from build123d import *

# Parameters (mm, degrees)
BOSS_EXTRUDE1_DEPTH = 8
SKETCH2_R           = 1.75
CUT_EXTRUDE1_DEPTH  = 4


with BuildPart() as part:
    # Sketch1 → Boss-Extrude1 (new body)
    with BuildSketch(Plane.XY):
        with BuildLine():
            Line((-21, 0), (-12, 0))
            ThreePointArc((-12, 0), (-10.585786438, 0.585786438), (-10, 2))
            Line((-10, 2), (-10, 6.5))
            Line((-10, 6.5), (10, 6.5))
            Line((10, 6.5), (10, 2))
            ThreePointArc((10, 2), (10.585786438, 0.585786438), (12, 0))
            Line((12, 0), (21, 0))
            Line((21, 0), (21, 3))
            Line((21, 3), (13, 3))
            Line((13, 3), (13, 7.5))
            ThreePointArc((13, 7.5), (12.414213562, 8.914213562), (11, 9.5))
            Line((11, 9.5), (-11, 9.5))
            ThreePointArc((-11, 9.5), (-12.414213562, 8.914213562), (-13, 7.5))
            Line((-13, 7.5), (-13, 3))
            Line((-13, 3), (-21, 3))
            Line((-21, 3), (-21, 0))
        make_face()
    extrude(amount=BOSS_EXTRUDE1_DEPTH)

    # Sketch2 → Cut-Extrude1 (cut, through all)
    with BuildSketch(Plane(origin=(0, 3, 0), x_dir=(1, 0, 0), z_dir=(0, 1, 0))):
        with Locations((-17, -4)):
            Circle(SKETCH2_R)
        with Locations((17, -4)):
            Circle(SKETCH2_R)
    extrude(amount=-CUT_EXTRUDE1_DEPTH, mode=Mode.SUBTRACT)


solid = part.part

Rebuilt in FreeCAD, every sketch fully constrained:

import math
import FreeCAD as App
import Part
import Sketcher

doc = App.newDocument("Part")
body = doc.addObject("PartDesign::Body", "Body")

sketch1 = body.newObject("Sketcher::SketchObject", "Sketch")
sketch1.AttachmentSupport = (doc.getObject("XY_Plane"), [""])
sketch1.MapMode = "FlatFace"
sketch1.addGeometry([
    Part.LineSegment(App.Vector(-21, 0, 0), App.Vector(-12, 0, 0)),
    Part.ArcOfCircle(Part.Circle(App.Vector(-12, 2, 0), App.Vector(0, 0, 1), 2), math.radians(-90), math.radians(0)),
    Part.LineSegment(App.Vector(-10, 2, 0), App.Vector(-10, 6.5, 0)),
    Part.LineSegment(App.Vector(-10, 6.5, 0), App.Vector(10, 6.5, 0)),
    Part.LineSegment(App.Vector(10, 6.5, 0), App.Vector(10, 2, 0)),
    Part.ArcOfCircle(Part.Circle(App.Vector(12, 2, 0), App.Vector(0, 0, 1), 2), math.radians(-180), math.radians(-90)),
    Part.LineSegment(App.Vector(12, 0, 0), App.Vector(21, 0, 0)),
    Part.LineSegment(App.Vector(21, 0, 0), App.Vector(21, 3, 0)),
    Part.LineSegment(App.Vector(21, 3, 0), App.Vector(13, 3, 0)),
    Part.LineSegment(App.Vector(13, 3, 0), App.Vector(13, 7.5, 0)),
    Part.ArcOfCircle(Part.Circle(App.Vector(11, 7.5, 0), App.Vector(0, 0, 1), 2), math.radians(0), math.radians(90)),
    Part.LineSegment(App.Vector(11, 9.5, 0), App.Vector(-11, 9.5, 0)),
    Part.ArcOfCircle(Part.Circle(App.Vector(-11, 7.5, 0), App.Vector(0, 0, 1), 2), math.radians(90), math.radians(180)),
    Part.LineSegment(App.Vector(-13, 7.5, 0), App.Vector(-13, 3, 0)),
    Part.LineSegment(App.Vector(-13, 3, 0), App.Vector(-21, 3, 0)),
    Part.LineSegment(App.Vector(-21, 3, 0), App.Vector(-21, 0, 0)),
], False)
sketch1.addConstraint([
    Sketcher.Constraint("Tangent", 0, 2, 1, 1),
    Sketcher.Constraint("Tangent", 1, 2, 2, 1),
    Sketcher.Constraint("Coincident", 2, 2, 3, 1),
    Sketcher.Constraint("Coincident", 3, 2, 4, 1),
    Sketcher.Constraint("Tangent", 4, 2, 5, 1),
    Sketcher.Constraint("Tangent", 5, 2, 6, 1),
    Sketcher.Constraint("Coincident", 6, 2, 7, 1),
    Sketcher.Constraint("Coincident", 7, 2, 8, 1),
    Sketcher.Constraint("Coincident", 8, 2, 9, 1),
    Sketcher.Constraint("Tangent", 9, 2, 10, 1),
    Sketcher.Constraint("Tangent", 10, 2, 11, 1),
    Sketcher.Constraint("Tangent", 11, 2, 12, 1),
    Sketcher.Constraint("Tangent", 12, 2, 13, 1),
    Sketcher.Constraint("Coincident", 13, 2, 14, 1),
    Sketcher.Constraint("Coincident", 14, 2, 15, 1),
    Sketcher.Constraint("Coincident", 15, 2, 0, 1),
    Sketcher.Constraint("Horizontal", 0),
    Sketcher.Constraint("Vertical", 2),
    Sketcher.Constraint("Horizontal", 3),
    Sketcher.Constraint("Vertical", 4),
    Sketcher.Constraint("Horizontal", 6),
    Sketcher.Constraint("Vertical", 7),
    Sketcher.Constraint("Horizontal", 8),
    Sketcher.Constraint("Vertical", 9),
    Sketcher.Constraint("Horizontal", 11),
    Sketcher.Constraint("Vertical", 13),
    Sketcher.Constraint("Horizontal", 14),
    Sketcher.Constraint("Vertical", 15),
    Sketcher.Constraint("Equal", 1, 5),
    Sketcher.Constraint("Equal", 5, 10),
    Sketcher.Constraint("Equal", 10, 12),
    Sketcher.Constraint("Symmetric", 0, 2, 5, 2, -1, 1),
    Sketcher.Constraint("Symmetric", 8, 2, 13, 2, -2),
    Sketcher.Constraint("Symmetric", 6, 2, 15, 2, -2),
    Sketcher.Constraint("Equal", 4, 9),
    Sketcher.Constraint("Radius", 1, 2.0),
    Sketcher.Constraint("DistanceX", 0, 1, 0, 2, 9.0),
    Sketcher.Constraint("DistanceX", 3, 1, 3, 2, 20.0),
    Sketcher.Constraint("DistanceX", 8, 2, 8, 1, 8.0),
    Sketcher.Constraint("DistanceY", 7, 1, 7, 2, 3.0),
    Sketcher.Constraint("DistanceY", 2, 1, 2, 2, 4.5),
])
pad1 = body.newObject("PartDesign::Pad", "Pad")
pad1.Profile = sketch1
pad1.Length = 8

sketch2 = body.newObject("Sketcher::SketchObject", "Sketch001")
sketch2.AttachmentSupport = (doc.getObject("XZ_Plane"), [""])
sketch2.MapMode = "FlatFace"
sketch2.AttachmentOffset = App.Placement(App.Vector(0, 0, -3), App.Rotation())
sketch2.addGeometry([
    Part.Circle(App.Vector(-17, 4, 0), App.Vector(0, 0, 1), 1.75),
    Part.Circle(App.Vector(17, 4, 0), App.Vector(0, 0, 1), 1.75),
], False)
sketch2.addConstraint([
    Sketcher.Constraint("Equal", 0, 1),
    Sketcher.Constraint("Symmetric", 0, 3, 1, 3, -2),
    Sketcher.Constraint("Diameter", 0, 3.5),
    Sketcher.Constraint("DistanceX", 0, 3, -1, 1, 17.0),
    Sketcher.Constraint("DistanceY", -1, 1, 0, 3, 4.0),
])
pocket1 = body.newObject("PartDesign::Pocket", "Pocket")
pocket1.Profile = sketch2
pocket1.Type = "ThroughAll"
pocket1.Reversed = True

doc.recompute()
